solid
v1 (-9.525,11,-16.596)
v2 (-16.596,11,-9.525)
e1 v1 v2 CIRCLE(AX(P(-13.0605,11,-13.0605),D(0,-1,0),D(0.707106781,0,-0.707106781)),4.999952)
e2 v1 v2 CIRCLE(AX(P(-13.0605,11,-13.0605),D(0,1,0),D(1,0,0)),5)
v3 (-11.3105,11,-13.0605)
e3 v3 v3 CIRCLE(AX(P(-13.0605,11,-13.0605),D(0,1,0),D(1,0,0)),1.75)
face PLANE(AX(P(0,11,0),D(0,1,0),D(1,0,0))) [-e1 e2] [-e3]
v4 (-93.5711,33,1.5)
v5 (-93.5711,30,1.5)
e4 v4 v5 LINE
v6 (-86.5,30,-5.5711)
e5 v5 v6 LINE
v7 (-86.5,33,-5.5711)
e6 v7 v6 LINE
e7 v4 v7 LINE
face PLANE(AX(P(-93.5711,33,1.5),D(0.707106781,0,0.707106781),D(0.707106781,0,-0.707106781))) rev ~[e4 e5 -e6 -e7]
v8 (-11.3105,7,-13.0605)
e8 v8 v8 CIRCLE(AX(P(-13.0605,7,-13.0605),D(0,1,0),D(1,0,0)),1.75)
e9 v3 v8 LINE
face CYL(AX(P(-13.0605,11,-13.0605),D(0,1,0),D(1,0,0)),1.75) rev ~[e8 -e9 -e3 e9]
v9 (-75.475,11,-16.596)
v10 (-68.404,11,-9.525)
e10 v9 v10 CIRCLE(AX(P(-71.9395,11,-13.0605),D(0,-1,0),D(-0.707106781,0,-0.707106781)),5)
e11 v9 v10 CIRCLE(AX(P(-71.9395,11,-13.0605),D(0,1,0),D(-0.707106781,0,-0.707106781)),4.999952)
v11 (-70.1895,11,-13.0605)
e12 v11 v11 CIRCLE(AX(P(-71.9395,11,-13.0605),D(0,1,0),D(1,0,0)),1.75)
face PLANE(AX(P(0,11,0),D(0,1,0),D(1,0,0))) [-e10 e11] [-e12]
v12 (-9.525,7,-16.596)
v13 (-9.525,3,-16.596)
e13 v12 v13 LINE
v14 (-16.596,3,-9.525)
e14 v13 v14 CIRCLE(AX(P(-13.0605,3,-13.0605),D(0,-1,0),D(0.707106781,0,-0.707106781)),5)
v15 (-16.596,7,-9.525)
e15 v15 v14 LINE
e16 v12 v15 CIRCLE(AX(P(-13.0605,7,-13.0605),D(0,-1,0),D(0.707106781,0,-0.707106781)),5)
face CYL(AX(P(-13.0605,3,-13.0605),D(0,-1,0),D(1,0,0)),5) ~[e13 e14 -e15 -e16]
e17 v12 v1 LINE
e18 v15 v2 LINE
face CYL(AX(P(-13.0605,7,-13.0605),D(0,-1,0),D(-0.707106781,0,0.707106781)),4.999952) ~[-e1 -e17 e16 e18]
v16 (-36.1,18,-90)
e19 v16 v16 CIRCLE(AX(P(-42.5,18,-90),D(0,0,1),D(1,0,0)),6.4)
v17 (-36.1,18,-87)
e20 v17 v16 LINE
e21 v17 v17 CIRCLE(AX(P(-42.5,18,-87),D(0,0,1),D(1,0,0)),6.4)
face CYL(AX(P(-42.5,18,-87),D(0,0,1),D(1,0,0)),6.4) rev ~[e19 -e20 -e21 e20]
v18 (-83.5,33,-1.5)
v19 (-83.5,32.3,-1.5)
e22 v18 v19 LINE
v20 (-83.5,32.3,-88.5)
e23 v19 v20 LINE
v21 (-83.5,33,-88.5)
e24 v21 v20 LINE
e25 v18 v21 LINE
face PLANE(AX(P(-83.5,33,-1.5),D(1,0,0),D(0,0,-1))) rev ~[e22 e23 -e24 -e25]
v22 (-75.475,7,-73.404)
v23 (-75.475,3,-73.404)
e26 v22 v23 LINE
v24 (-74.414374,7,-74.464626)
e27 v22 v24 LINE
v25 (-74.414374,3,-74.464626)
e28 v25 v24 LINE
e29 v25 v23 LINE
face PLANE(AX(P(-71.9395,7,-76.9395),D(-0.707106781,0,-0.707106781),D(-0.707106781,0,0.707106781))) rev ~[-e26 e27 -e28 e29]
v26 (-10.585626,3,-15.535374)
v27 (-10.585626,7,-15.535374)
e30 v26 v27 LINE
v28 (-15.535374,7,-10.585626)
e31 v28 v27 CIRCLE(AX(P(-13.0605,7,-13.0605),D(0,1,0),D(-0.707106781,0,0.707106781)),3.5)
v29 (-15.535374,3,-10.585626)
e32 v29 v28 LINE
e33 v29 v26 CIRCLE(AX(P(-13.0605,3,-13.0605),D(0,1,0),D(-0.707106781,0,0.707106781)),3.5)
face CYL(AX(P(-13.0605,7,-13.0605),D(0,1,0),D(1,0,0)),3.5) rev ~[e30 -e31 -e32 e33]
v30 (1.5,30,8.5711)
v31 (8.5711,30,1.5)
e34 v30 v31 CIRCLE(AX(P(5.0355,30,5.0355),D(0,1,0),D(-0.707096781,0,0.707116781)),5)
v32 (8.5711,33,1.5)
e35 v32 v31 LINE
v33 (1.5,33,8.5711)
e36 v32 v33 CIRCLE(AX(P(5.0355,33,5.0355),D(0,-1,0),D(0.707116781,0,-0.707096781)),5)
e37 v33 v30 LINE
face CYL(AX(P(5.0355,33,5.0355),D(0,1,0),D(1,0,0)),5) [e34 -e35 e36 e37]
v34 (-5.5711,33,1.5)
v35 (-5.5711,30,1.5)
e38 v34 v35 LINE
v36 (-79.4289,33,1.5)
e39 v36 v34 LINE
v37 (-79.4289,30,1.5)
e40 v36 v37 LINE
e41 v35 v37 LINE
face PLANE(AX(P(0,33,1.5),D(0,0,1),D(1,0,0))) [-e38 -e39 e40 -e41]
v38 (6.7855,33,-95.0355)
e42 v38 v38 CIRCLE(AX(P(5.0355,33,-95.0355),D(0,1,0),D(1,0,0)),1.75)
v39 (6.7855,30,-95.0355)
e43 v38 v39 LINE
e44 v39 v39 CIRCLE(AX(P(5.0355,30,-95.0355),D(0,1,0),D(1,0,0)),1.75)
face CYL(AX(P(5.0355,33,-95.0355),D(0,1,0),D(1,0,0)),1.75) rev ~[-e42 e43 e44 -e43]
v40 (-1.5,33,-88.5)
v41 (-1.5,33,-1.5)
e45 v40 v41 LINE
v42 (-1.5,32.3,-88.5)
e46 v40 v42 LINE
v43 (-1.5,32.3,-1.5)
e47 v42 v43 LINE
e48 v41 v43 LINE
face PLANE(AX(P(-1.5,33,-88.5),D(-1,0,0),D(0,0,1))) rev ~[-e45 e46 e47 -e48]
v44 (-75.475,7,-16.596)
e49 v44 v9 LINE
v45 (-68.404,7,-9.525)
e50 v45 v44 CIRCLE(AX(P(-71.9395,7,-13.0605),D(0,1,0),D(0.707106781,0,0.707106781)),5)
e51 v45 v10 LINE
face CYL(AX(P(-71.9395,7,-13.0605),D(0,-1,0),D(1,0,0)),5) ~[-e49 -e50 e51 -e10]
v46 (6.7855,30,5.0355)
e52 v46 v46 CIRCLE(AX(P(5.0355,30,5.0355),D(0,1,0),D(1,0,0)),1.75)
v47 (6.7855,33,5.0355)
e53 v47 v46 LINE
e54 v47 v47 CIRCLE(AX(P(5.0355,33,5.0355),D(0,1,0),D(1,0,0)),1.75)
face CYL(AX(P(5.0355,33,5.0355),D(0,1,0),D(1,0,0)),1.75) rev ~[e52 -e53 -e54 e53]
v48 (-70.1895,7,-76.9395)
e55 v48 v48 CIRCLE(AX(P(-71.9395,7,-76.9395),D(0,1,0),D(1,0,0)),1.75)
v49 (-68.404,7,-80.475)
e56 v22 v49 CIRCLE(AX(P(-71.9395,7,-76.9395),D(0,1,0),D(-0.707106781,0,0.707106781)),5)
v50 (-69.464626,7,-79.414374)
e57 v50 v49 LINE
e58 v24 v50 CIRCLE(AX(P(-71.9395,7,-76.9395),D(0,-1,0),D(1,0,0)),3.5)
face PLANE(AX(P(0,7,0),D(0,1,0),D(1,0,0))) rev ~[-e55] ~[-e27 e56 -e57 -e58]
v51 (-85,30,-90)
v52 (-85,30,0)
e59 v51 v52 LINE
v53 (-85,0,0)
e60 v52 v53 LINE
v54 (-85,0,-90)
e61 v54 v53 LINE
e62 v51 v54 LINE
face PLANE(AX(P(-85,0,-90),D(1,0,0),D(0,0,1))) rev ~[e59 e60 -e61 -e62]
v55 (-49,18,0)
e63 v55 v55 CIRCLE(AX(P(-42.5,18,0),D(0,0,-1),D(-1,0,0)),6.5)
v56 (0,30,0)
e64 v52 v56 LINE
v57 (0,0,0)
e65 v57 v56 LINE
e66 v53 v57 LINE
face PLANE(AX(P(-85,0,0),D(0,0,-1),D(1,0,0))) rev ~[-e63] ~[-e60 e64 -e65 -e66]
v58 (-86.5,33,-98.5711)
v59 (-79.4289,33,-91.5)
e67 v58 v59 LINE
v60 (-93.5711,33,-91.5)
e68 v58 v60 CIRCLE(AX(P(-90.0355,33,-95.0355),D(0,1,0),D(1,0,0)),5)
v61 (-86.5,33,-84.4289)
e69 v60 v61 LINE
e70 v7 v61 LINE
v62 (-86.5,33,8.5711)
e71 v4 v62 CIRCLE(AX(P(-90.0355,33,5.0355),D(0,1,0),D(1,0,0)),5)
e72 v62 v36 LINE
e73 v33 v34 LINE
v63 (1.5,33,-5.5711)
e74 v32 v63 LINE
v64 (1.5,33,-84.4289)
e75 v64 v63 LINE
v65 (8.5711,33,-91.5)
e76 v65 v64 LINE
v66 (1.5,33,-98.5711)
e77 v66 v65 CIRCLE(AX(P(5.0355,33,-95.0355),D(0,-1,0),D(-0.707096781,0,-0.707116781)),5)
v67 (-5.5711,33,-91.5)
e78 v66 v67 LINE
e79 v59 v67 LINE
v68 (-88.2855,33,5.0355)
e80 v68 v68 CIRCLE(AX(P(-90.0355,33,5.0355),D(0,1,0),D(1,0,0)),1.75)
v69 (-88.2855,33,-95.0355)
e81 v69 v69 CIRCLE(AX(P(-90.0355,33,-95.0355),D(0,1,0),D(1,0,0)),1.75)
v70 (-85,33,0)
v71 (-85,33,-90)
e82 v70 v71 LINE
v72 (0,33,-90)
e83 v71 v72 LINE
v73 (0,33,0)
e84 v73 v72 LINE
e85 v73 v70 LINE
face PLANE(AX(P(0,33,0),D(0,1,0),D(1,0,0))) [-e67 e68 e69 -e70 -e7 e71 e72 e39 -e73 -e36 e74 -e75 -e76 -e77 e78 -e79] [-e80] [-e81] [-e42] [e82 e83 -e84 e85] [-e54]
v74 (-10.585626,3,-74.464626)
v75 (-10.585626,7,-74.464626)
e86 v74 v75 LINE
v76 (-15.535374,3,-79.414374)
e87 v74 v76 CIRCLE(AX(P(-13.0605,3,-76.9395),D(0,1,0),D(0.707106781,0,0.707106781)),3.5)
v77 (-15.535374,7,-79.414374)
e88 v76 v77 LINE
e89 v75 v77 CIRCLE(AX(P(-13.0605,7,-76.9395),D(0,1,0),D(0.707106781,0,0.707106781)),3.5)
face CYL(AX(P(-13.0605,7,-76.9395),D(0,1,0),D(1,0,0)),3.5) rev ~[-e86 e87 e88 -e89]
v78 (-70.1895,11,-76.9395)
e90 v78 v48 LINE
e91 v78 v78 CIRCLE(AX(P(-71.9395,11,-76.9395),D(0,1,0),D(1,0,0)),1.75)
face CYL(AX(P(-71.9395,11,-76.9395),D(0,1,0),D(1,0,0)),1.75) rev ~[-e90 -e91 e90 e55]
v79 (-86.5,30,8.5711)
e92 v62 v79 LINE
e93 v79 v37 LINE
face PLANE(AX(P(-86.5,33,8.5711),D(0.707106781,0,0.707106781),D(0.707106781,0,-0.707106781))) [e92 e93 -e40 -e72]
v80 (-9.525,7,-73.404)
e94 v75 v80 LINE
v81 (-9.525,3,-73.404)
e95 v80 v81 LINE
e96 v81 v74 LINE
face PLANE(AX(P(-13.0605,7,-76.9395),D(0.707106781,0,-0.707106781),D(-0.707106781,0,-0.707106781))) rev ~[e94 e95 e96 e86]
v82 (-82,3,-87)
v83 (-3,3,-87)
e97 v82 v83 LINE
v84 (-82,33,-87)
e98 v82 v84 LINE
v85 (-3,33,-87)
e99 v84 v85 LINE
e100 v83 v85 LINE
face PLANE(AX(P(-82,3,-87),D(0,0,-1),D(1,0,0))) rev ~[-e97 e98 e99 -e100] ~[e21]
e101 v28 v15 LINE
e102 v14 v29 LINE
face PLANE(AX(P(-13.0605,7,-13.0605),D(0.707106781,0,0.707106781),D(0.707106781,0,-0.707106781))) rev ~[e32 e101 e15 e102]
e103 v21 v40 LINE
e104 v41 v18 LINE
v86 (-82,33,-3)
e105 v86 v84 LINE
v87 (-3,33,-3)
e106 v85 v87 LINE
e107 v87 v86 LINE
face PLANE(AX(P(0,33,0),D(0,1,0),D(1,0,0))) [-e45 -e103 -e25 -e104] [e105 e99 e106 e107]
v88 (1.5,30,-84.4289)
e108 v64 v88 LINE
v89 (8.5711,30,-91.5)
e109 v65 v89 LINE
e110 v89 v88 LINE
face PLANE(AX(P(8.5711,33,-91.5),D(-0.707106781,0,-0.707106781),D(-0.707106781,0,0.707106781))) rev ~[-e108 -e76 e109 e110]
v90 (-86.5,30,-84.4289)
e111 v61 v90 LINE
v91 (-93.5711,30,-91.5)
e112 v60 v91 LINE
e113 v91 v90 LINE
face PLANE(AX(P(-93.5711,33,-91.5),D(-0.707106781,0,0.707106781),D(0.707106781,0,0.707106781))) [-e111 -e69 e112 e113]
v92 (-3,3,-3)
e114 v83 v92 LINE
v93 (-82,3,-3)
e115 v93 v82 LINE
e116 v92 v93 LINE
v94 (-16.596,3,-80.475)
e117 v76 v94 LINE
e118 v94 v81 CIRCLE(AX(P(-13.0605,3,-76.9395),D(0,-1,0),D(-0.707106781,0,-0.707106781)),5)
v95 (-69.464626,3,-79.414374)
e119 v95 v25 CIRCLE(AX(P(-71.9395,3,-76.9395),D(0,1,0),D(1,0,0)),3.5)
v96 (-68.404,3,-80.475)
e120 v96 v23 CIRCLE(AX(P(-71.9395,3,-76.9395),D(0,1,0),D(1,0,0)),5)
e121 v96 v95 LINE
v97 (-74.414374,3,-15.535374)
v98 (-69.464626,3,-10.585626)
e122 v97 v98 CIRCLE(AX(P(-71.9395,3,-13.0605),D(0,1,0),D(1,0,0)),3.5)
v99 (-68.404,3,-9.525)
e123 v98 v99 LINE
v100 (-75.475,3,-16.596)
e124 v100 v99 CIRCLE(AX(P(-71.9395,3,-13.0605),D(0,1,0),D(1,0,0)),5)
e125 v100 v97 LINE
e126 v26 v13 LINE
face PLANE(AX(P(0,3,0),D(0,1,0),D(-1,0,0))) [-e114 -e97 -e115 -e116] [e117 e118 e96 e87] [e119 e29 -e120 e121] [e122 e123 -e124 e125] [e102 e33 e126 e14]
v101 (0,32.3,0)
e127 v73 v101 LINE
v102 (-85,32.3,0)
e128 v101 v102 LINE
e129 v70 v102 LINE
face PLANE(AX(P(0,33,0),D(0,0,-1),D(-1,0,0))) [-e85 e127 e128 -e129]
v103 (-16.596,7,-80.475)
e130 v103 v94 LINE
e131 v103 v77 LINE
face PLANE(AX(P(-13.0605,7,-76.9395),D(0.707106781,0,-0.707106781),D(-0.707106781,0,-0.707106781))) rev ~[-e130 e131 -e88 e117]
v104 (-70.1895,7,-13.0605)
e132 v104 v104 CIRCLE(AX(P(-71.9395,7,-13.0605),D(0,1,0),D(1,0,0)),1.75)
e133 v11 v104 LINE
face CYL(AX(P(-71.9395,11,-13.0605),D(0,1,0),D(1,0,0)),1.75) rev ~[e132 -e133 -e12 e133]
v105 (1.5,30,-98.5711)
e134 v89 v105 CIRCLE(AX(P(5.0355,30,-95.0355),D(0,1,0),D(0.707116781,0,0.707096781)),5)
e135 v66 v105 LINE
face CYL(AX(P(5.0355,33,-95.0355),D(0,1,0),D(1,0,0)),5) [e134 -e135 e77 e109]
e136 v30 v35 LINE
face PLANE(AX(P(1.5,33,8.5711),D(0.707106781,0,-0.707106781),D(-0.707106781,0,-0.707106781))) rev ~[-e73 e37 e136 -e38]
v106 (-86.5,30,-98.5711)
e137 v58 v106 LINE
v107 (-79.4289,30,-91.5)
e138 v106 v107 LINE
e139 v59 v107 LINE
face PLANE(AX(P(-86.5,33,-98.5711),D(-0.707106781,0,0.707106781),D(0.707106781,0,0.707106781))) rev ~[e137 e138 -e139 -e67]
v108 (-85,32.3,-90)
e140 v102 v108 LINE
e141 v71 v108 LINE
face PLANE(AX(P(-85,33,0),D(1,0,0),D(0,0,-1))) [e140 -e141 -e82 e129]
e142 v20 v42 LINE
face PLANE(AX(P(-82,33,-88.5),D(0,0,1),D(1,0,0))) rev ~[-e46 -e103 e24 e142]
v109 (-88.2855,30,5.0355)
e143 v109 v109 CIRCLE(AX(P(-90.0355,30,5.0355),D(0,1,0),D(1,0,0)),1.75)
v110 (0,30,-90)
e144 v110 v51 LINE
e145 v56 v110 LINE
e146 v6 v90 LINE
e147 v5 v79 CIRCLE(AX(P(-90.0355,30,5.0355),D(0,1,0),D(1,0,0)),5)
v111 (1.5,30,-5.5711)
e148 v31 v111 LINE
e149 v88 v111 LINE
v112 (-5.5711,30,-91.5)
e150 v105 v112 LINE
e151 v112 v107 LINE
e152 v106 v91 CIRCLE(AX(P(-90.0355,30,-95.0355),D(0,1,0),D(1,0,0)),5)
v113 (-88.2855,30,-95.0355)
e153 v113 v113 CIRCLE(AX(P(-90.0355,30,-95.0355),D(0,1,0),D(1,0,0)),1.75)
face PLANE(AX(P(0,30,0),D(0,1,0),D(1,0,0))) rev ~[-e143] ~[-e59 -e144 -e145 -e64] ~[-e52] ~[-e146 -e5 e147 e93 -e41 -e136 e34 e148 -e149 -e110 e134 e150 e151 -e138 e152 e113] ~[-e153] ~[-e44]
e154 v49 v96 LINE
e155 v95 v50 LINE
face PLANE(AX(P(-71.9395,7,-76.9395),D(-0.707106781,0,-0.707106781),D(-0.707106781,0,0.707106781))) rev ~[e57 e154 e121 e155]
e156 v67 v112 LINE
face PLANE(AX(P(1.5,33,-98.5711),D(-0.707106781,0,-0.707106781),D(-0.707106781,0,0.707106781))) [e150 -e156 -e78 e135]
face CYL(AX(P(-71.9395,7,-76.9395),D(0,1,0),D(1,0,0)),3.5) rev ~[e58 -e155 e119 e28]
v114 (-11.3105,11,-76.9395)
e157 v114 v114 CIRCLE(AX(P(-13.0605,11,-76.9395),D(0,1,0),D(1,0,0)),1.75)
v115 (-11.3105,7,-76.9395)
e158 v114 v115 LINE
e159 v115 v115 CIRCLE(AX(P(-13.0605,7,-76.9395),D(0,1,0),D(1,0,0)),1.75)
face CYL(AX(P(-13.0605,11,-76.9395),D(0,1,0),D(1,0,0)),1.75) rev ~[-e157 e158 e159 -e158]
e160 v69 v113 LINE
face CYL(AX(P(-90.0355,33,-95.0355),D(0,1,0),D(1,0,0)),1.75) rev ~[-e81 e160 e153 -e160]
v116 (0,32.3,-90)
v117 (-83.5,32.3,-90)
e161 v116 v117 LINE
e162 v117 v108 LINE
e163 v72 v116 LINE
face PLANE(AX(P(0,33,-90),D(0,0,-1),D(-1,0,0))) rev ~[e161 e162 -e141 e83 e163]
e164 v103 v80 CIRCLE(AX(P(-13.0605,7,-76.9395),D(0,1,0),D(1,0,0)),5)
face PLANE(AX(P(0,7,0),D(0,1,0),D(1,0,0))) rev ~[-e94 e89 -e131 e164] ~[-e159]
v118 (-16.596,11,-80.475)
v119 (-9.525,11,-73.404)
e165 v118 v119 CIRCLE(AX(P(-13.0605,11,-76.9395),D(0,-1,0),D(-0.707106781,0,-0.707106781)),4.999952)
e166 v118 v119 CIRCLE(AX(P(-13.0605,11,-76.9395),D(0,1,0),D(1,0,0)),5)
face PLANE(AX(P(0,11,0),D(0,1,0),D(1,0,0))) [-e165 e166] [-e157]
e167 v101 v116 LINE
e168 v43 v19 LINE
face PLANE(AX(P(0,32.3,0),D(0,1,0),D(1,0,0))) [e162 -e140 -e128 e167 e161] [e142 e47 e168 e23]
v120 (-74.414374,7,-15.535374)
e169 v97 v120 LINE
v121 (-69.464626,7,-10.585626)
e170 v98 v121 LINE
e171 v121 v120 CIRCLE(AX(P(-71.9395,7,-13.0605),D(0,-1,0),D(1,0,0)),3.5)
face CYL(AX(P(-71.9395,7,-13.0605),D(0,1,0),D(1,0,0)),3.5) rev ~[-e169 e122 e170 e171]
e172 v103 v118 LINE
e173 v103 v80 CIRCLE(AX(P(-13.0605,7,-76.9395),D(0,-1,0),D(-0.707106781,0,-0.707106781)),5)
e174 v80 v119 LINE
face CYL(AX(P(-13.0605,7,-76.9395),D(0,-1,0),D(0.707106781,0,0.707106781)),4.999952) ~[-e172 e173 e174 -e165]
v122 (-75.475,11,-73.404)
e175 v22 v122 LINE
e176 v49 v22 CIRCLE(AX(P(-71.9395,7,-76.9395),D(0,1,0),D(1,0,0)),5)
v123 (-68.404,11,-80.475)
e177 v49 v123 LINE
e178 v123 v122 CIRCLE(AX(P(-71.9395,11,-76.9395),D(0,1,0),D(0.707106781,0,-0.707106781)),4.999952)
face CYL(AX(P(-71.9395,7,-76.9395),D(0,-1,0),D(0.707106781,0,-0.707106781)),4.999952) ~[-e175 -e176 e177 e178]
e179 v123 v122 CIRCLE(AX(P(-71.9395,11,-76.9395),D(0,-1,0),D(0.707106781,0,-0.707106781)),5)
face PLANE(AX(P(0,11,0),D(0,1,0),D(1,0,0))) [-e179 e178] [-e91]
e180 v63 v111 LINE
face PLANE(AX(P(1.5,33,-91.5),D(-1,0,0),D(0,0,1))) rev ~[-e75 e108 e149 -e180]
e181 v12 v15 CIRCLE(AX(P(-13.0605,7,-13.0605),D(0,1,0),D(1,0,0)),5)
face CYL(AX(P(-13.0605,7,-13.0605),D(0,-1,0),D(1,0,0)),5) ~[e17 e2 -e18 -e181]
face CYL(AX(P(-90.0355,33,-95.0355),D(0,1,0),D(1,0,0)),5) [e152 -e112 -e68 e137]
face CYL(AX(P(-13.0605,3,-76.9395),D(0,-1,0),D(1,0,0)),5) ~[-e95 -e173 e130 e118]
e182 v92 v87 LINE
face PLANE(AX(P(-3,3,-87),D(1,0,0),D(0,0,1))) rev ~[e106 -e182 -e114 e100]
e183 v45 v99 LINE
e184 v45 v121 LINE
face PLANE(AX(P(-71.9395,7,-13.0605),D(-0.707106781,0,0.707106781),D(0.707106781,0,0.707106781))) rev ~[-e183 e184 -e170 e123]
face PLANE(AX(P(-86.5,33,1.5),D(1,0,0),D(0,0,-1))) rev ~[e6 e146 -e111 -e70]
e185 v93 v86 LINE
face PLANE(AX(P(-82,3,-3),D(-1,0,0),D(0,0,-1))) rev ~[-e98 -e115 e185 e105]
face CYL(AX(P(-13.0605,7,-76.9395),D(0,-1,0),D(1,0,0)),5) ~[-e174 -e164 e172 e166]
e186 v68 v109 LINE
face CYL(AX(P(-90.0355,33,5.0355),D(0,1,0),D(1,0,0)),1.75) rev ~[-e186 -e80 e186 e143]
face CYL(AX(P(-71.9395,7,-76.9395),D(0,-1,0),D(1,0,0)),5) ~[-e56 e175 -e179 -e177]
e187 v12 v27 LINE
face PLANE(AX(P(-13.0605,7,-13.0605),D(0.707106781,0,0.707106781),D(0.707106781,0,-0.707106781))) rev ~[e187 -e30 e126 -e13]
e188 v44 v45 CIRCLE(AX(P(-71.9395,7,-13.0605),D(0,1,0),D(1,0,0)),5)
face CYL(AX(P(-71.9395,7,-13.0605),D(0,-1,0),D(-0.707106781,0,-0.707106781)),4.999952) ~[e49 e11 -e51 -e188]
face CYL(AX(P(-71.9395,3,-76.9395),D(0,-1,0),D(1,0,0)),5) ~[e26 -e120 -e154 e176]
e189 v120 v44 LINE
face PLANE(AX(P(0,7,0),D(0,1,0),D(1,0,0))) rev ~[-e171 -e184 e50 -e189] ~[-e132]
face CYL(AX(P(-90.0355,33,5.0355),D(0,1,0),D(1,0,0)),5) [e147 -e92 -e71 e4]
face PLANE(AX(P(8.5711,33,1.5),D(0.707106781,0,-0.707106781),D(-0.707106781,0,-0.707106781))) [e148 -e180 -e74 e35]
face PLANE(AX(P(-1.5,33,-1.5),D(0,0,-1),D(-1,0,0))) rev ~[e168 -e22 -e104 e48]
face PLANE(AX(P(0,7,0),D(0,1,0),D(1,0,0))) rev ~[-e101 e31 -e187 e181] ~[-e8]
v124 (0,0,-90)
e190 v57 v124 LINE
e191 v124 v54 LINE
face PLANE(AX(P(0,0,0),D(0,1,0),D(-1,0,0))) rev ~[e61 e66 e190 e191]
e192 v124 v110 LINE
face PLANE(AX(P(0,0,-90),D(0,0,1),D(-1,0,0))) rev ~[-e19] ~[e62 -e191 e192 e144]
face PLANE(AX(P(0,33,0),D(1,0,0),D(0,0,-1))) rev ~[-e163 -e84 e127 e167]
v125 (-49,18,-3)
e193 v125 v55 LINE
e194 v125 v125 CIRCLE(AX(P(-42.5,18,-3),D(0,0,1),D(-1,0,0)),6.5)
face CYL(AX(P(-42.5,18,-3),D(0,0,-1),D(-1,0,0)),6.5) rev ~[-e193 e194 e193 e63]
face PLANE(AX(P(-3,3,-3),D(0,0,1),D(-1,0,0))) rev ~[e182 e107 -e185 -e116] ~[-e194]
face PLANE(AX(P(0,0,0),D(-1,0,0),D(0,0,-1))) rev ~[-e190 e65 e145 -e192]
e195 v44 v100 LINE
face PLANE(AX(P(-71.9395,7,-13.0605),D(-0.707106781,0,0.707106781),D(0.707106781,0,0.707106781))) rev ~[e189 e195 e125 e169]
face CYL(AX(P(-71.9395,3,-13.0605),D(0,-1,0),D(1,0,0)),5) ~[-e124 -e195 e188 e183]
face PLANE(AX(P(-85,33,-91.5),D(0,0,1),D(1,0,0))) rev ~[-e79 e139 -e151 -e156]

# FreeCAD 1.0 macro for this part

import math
import FreeCAD as App
import Part
import Sketcher
from FreeCAD import Vector

doc = App.newDocument("Part")
body = doc.addObject("PartDesign::Body", "Body")

sketch1 = body.newObject("Sketcher::SketchObject", "Sketch")
sketch1.AttachmentSupport = (doc.getObject("XZ_Plane"), [""])
sketch1.MapMode = "FlatFace"
sketch1.addGeometry([
    Part.LineSegment(Vector(-85, 0, 0), Vector(0, 0, 0)),
    Part.LineSegment(Vector(0, 0, 0), Vector(0, -90, 0)),
    Part.LineSegment(Vector(0, -90, 0), Vector(-85, -90, 0)),
    Part.LineSegment(Vector(-85, -90, 0), Vector(-85, 0, 0)),
], False)
sketch1.addConstraint([
    Sketcher.Constraint("Coincident", 0, 2, 1, 1),
    Sketcher.Constraint("Coincident", 1, 2, 2, 1),
    Sketcher.Constraint("Coincident", 2, 2, 3, 1),
    Sketcher.Constraint("Coincident", 3, 2, 0, 1),
    Sketcher.Constraint("Horizontal", 0),
    Sketcher.Constraint("Vertical", 1),
    Sketcher.Constraint("Horizontal", 2),
    Sketcher.Constraint("Vertical", 3),
    Sketcher.Constraint("Coincident", 0, 2, -1, 1),
    Sketcher.Constraint("DistanceX", 0, 1, 0, 2, 85.0),
    Sketcher.Constraint("DistanceY", 1, 2, 1, 1, 90.0),
])
pad1 = body.newObject("PartDesign::Pad", "Pad")
pad1.Profile = sketch1
pad1.Length = 3
pad1.Reversed = True

sketch2 = body.newObject("Sketcher::SketchObject", "Sketch001")
sketch2.AttachmentSupport = (doc.getObject("XZ_Plane"), [""])
sketch2.MapMode = "FlatFace"
sketch2.AttachmentOffset = App.Placement(Vector(0, 0, -3), App.Rotation())
sketch2.addGeometry([
    Part.LineSegment(Vector(-85, 0, 0), Vector(0, 0, 0)),
    Part.LineSegment(Vector(0, 0, 0), Vector(0, -90, 0)),
    Part.LineSegment(Vector(0, -90, 0), Vector(-85, -90, 0)),
    Part.LineSegment(Vector(-85, -90, 0), Vector(-85, 0, 0)),
    Part.LineSegment(Vector(-3, -87, 0), Vector(-3, -3, 0)),
    Part.LineSegment(Vector(-3, -3, 0), Vector(-82, -3, 0)),
    Part.LineSegment(Vector(-82, -3, 0), Vector(-82, -87, 0)),
    Part.LineSegment(Vector(-82, -87, 0), Vector(-3, -87, 0)),
], False)
sketch2.addConstraint([
    Sketcher.Constraint("Coincident", 0, 2, 1, 1),
    Sketcher.Constraint("Coincident", 1, 2, 2, 1),
    Sketcher.Constraint("Coincident", 2, 2, 3, 1),
    Sketcher.Constraint("Coincident", 3, 2, 0, 1),
    Sketcher.Constraint("Coincident", 4, 2, 5, 1),
    Sketcher.Constraint("Coincident", 5, 2, 6, 1),
    Sketcher.Constraint("Coincident", 6, 2, 7, 1),
    Sketcher.Constraint("Coincident", 7, 2, 4, 1),
    Sketcher.Constraint("Horizontal", 0),
    Sketcher.Constraint("Vertical", 1),
    Sketcher.Constraint("Horizontal", 2),
    Sketcher.Constraint("Vertical", 3),
    Sketcher.Constraint("Vertical", 4),
    Sketcher.Constraint("Horizontal", 5),
    Sketcher.Constraint("Vertical", 6),
    Sketcher.Constraint("Horizontal", 7),
    Sketcher.Constraint("Coincident", 0, 2, -1, 1),
    Sketcher.Constraint("DistanceX", 0, 1, 0, 2, 85.0),
    Sketcher.Constraint("DistanceX", 5, 2, 5, 1, 79.0),
    Sketcher.Constraint("DistanceY", 1, 2, 1, 1, 90.0),
    Sketcher.Constraint("DistanceY", 4, 1, 4, 2, 84.0),
    Sketcher.Constraint("DistanceX", 4, 2, -1, 1, 3.0),
    Sketcher.Constraint("DistanceY", 4, 2, -1, 1, 3.0),
])
pad2 = body.newObject("PartDesign::Pad", "Pad001")
pad2.Profile = sketch2
pad2.Length = 30
pad2.Reversed = True

sketch3 = body.newObject("Sketcher::SketchObject", "Sketch002")
sketch3.AttachmentSupport = (doc.getObject("XZ_Plane"), [""])
sketch3.MapMode = "FlatFace"
sketch3.AttachmentOffset = App.Placement(Vector(0, 0, -33), App.Rotation())
sketch3.addGeometry([
    Part.LineSegment(Vector(2, -92, 0), Vector(-86, -92, 0)),
    Part.LineSegment(Vector(-86, -92, 0), Vector(-86, 2, 0)),
    Part.LineSegment(Vector(-86, 2, 0), Vector(2, 2, 0)),
    Part.LineSegment(Vector(2, 2, 0), Vector(2, -92, 0)),
    Part.LineSegment(Vector(0, -90, 0), Vector(0, 0, 0)),
    Part.LineSegment(Vector(0, 0, 0), Vector(-85, 0, 0)),
    Part.LineSegment(Vector(-85, 0, 0), Vector(-85, -90, 0)),
    Part.LineSegment(Vector(-85, -90, 0), Vector(0, -90, 0)),
], False)
sketch3.addConstraint([
    Sketcher.Constraint("Coincident", 0, 2, 1, 1),
    Sketcher.Constraint("Coincident", 1, 2, 2, 1),
    Sketcher.Constraint("Coincident", 2, 2, 3, 1),
    Sketcher.Constraint("Coincident", 3, 2, 0, 1),
    Sketcher.Constraint("Coincident", 4, 2, 5, 1),
    Sketcher.Constraint("Coincident", 5, 2, 6, 1),
    Sketcher.Constraint("Coincident", 6, 2, 7, 1),
    Sketcher.Constraint("Coincident", 7, 2, 4, 1),
    Sketcher.Constraint("Horizontal", 0),
    Sketcher.Constraint("Vertical", 1),
    Sketcher.Constraint("Horizontal", 2),
    Sketcher.Constraint("Vertical", 3),
    Sketcher.Constraint("Vertical", 4),
    Sketcher.Constraint("Horizontal", 5),
    Sketcher.Constraint("Vertical", 6),
    Sketcher.Constraint("Horizontal", 7),
    Sketcher.Constraint("Coincident", 4, 2, -1, 1),
    Sketcher.Constraint("DistanceY", -1, 1, 1, 2, 1.5),
    Sketcher.Constraint("DistanceX", -1, 1, 2, 2, 1.5),
    Sketcher.Constraint("DistanceX", 1, 2, 5, 2, 1.5),
    Sketcher.Constraint("DistanceY", 0, 2, 6, 2, 1.5),
    Sketcher.Constraint("DistanceX", 0, 2, 0, 1, 88.0),
    Sketcher.Constraint("DistanceY", 1, 1, 1, 2, 93.0),
])
pad3 = body.newObject("PartDesign::Pad", "Pad002")
pad3.Profile = sketch3
pad3.Length = 3

sketch4 = body.newObject("Sketcher::SketchObject", "Sketch003")
sketch4.AttachmentSupport = (doc.getObject("XZ_Plane"), [""])
sketch4.MapMode = "FlatFace"
sketch4.AttachmentOffset = App.Placement(Vector(0, 0, -33), App.Rotation())
sketch4.addGeometry([
    Part.LineSegment(Vector(0, -90, 0), Vector(-83.5, -90, 0)),
    Part.LineSegment(Vector(-83.5, -90, 0), Vector(-85, -90, 0)),
    Part.LineSegment(Vector(-85, -90, 0), Vector(-85, 0, 0)),
    Part.LineSegment(Vector(-85, 0, 0), Vector(0, 0, 0)),
    Part.LineSegment(Vector(0, 0, 0), Vector(0, -90, 0)),
    Part.LineSegment(Vector(-1.5, -88.5, 0), Vector(-1.5, -1.5, 0)),
    Part.LineSegment(Vector(-1.5, -1.5, 0), Vector(-83.5, -1.5, 0)),
    Part.LineSegment(Vector(-83.5, -1.5, 0), Vector(-83.5, -88.5, 0)),
    Part.LineSegment(Vector(-83.5, -88.5, 0), Vector(-1.5, -88.5, 0)),
], False)
sketch4.addConstraint([
    Sketcher.Constraint("Coincident", 0, 2, 1, 1),
    Sketcher.Constraint("Coincident", 1, 2, 2, 1),
    Sketcher.Constraint("Coincident", 2, 2, 3, 1),
    Sketcher.Constraint("Coincident", 3, 2, 4, 1),
    Sketcher.Constraint("Coincident", 4, 2, 0, 1),
    Sketcher.Constraint("Coincident", 5, 2, 6, 1),
    Sketcher.Constraint("Coincident", 6, 2, 7, 1),
    Sketcher.Constraint("Coincident", 7, 2, 8, 1),
    Sketcher.Constraint("Coincident", 8, 2, 5, 1),
    Sketcher.Constraint("Horizontal", 0),
    Sketcher.Constraint("Horizontal", 1),
    Sketcher.Constraint("Vertical", 2),
    Sketcher.Constraint("Horizontal", 3),
    Sketcher.Constraint("Vertical", 4),
    Sketcher.Constraint("Vertical", 5),
    Sketcher.Constraint("Horizontal", 6),
    Sketcher.Constraint("Vertical", 7),
    Sketcher.Constraint("Horizontal", 8),
    Sketcher.Constraint("Coincident", 3, 2, -1, 1),
    Sketcher.Constraint("Vertical", 0, 2, 6, 2),
    Sketcher.Constraint("DistanceX", 1, 2, 1, 1, 1.5),
    Sketcher.Constraint("DistanceX", 5, 2, -1, 1, 1.5),
    Sketcher.Constraint("DistanceY", 5, 2, -1, 1, 1.5),
    Sketcher.Constraint("DistanceY", 0, 2, 7, 2, 1.5),
    Sketcher.Constraint("DistanceX", 3, 1, 3, 2, 85.0),
    Sketcher.Constraint("DistanceY", 2, 1, 2, 2, 90.0),
])
pocket1 = body.newObject("PartDesign::Pocket", "Pocket")
pocket1.Profile = sketch4
pocket1.Length = 0.7
pocket1.Reversed = True

sketch5 = body.newObject("Sketcher::SketchObject", "Sketch004")
sketch5.AttachmentSupport = (doc.getObject("XY_Plane"), [""])
sketch5.MapMode = "FlatFace"
sketch5.AttachmentOffset = App.Placement(Vector(0, 0, -87), App.Rotation())
sketch5.addGeometry(Part.Circle(Vector(-42, 18, 0), Vector(0, 0, 1), 6), False)
sketch5.addConstraint([
    Sketcher.Constraint("Diameter", 0, 12.8),
    Sketcher.Constraint("DistanceY", -1, 1, 0, 3, 18.0),
    Sketcher.Constraint("DistanceX", 0, 3, -1, 1, 42.5),
])
pocket2 = body.newObject("PartDesign::Pocket", "Pocket001")
pocket2.Profile = sketch5
pocket2.Length = 3

sketch6 = body.newObject("Sketcher::SketchObject", "Sketch005")
sketch6.AttachmentSupport = (doc.getObject("XY_Plane"), [""])
sketch6.MapMode = "FlatFace"
sketch6.AttachmentOffset = App.Placement(Vector(0, 0, -3), App.Rotation())
sketch6.addGeometry(Part.Circle(Vector(-42, 18, 0), Vector(0, 0, 1), 6), False)
sketch6.addConstraint([
    Sketcher.Constraint("Diameter", 0, 13.0),
    Sketcher.Constraint("DistanceY", -1, 1, 0, 3, 18.0),
    Sketcher.Constraint("DistanceX", 0, 3, -1, 1, 42.5),
])
pocket3 = body.newObject("PartDesign::Pocket", "Pocket002")
pocket3.Profile = sketch6
pocket3.Length = 3
pocket3.Reversed = True

sketch7 = body.newObject("Sketcher::SketchObject", "Sketch006")
sketch7.AttachmentSupport = (doc.getObject("XZ_Plane"), [""])
sketch7.MapMode = "FlatFace"
sketch7.AttachmentOffset = App.Placement(Vector(0, 0, -3), App.Rotation())
sketch7.addGeometry([
    Part.Circle(Vector(-13, -13, 0), Vector(0, 0, 1), 5),
    Part.Circle(Vector(-13, -77, 0), Vector(0, 0, 1), 5),
    Part.Circle(Vector(-72, -77, 0), Vector(0, 0, 1), 5),
    Part.Circle(Vector(-72, -13, 0), Vector(0, 0, 1), 5),
], False)
sketch7.addConstraint([
    Sketcher.Constraint("Equal", 0, 1),
    Sketcher.Constraint("Equal", 1, 2),
    Sketcher.Constraint("Equal", 2, 3),
    Sketcher.Constraint("Horizontal", 1, 3, 2, 3),
    Sketcher.Constraint("Horizontal", 0, 3, 3, 3),
    Sketcher.Constraint("Vertical", 0, 3, 1, 3),
    Sketcher.Constraint("Vertical", 2, 3, 3, 3),
    Sketcher.Constraint("Diameter", 0, 10.0),
    Sketcher.Constraint("DistanceY", 1, 3, 0, 3, 63.879),
    Sketcher.Constraint("DistanceX", 2, 3, 1, 3, 58.879),
    Sketcher.Constraint("DistanceX", 0, 3, -1, 1, 13.0605),
    Sketcher.Constraint("DistanceY", 0, 3, -1, 1, 13.0605),
])
pad4 = body.newObject("PartDesign::Pad", "Pad003")
pad4.Profile = sketch7
pad4.Length = 4
pad4.Reversed = True

sketch8 = body.newObject("Sketcher::SketchObject", "Sketch007")
sketch8.AttachmentSupport = (doc.getObject("XZ_Plane"), [""])
sketch8.MapMode = "FlatFace"
sketch8.AttachmentOffset = App.Placement(Vector(0, 0, -7), App.Rotation())
sketch8.addGeometry([
    Part.ArcOfCircle(Part.Circle(Vector(-72, -13, 0), Vector(0, 0, 1), 5), math.radians(-135), math.radians(45)),
    Part.LineSegment(Vector(-68, -10, 0), Vector(-75, -17, 0)),
    Part.ArcOfCircle(Part.Circle(Vector(-72, -77, 0), Vector(0, 0, 1), 5), math.radians(-45), math.radians(135)),
    Part.LineSegment(Vector(-75, -73, 0), Vector(-68, -80, 0)),
    Part.LineSegment(Vector(-17, -10, 0), Vector(-10, -17, 0)),
    Part.ArcOfCircle(Part.Circle(Vector(-13, -13, 0), Vector(0, 0, 1), 5), math.radians(135), math.radians(315)),
    Part.LineSegment(Vector(-10, -73, 0), Vector(-17, -80, 0)),
    Part.ArcOfCircle(Part.Circle(Vector(-13, -77, 0), Vector(0, 0, 1), 5), math.radians(45), math.radians(225)),
], False)
sketch8.addConstraint([
    Sketcher.Constraint("Coincident", 0, 1, 1, 2),
    Sketcher.Constraint("Coincident", 1, 1, 0, 2),
    Sketcher.Constraint("Coincident", 2, 1, 3, 2),
    Sketcher.Constraint("Coincident", 3, 1, 2, 2),
    Sketcher.Constraint("Coincident", 4, 1, 5, 1),
    Sketcher.Constraint("Coincident", 5, 2, 4, 2),
    Sketcher.Constraint("Coincident", 6, 1, 7, 1),
    Sketcher.Constraint("Coincident", 7, 2, 6, 2),
    Sketcher.Constraint("Equal", 0, 2),
    Sketcher.Constraint("Equal", 2, 5),
    Sketcher.Constraint("Equal", 5, 7),
    Sketcher.Constraint("Perpendicular", 1, 3),
    Sketcher.Constraint("Parallel", 3, 4),
    Sketcher.Constraint("Perpendicular", 4, 6),
    Sketcher.Constraint("Horizontal", 0, 3, 5, 3),
    Sketcher.Constraint("Horizontal", 2, 3, 7, 3),
    Sketcher.Constraint("Horizontal", 1, 1, 4, 1),
    Sketcher.Constraint("Horizontal", 0, 1, 5, 2),
    Sketcher.Constraint("Horizontal", 3, 1, 6, 1),
    Sketcher.Constraint("Vertical", 0, 3, 2, 3),
    Sketcher.Constraint("Vertical", 5, 3, 7, 3),
    Sketcher.Constraint("Vertical", 1, 1, 2, 1),
    Sketcher.Constraint("Radius", 0, 5.0),
    Sketcher.Constraint("DistanceY", 2, 1, 1, 1, 70.95),
    Sketcher.Constraint("DistanceX", 0, 1, -1, 1, 75.475),
    Sketcher.Constraint("DistanceY", 0, 1, -1, 1, 16.596),
    Sketcher.Constraint("DistanceX", 4, 1, -1, 1, 16.596),
    Sketcher.Constraint("DistanceY", 2, 3, 0, 3, 63.879),
])
pocket4 = body.newObject("PartDesign::Pocket", "Pocket003")
pocket4.Profile = sketch8
pocket4.Length = 4
pocket4.Reversed = True

sketch9 = body.newObject("Sketcher::SketchObject", "Sketch008")
sketch9.AttachmentSupport = (doc.getObject("XZ_Plane"), [""])
sketch9.MapMode = "FlatFace"
sketch9.AttachmentOffset = App.Placement(Vector(0, 0, -7), App.Rotation())
sketch9.addGeometry([
    Part.Circle(Vector(-71.9, -13.1, 0), Vector(0, 0, 1), 3.5),
    Part.Circle(Vector(-71.9, -76.9, 0), Vector(0, 0, 1), 3.5),
    Part.Circle(Vector(-13.1, -76.9, 0), Vector(0, 0, 1), 3.5),
    Part.Circle(Vector(-13.1, -13.1, 0), Vector(0, 0, 1), 3.5),
], False)
sketch9.addConstraint([
    Sketcher.Constraint("Equal", 0, 1),
    Sketcher.Constraint("Equal", 1, 2),
    Sketcher.Constraint("Equal", 2, 3),
    Sketcher.Constraint("Horizontal", 1, 3, 2, 3),
    Sketcher.Constraint("Horizontal", 0, 3, 3, 3),
    Sketcher.Constraint("Vertical", 0, 3, 1, 3),
    Sketcher.Constraint("Vertical", 2, 3, 3, 3),
    Sketcher.Constraint("Diameter", 0, 7.0),
    Sketcher.Constraint("DistanceY", 1, 3, 0, 3, 63.879),
    Sketcher.Constraint("DistanceX", 1, 3, 2, 3, 58.879),
    Sketcher.Constraint("DistanceX", 0, 3, -1, 1, 71.9395),
    Sketcher.Constraint("DistanceY", 0, 3, -1, 1, 13.0605),
])
pocket5 = body.newObject("PartDesign::Pocket", "Pocket004")
pocket5.Profile = sketch9
pocket5.Length = 4
pocket5.Reversed = True

sketch10 = body.newObject("Sketcher::SketchObject", "Sketch009")
sketch10.AttachmentSupport = (doc.getObject("XZ_Plane"), [""])
sketch10.MapMode = "FlatFace"
sketch10.AttachmentOffset = App.Placement(Vector(0, 0, -7), App.Rotation())
sketch10.addGeometry([
    Part.Circle(Vector(-71.9, -13.1, 0), Vector(0, 0, 1), 5),
    Part.Circle(Vector(-13.1, -13.1, 0), Vector(0, 0, 1), 5),
    Part.Circle(Vector(-13.1, -76.9, 0), Vector(0, 0, 1), 5),
    Part.Circle(Vector(-71.9, -76.9, 0), Vector(0, 0, 1), 5),
], False)
sketch10.addConstraint([
    Sketcher.Constraint("Equal", 0, 1),
    Sketcher.Constraint("Equal", 1, 2),
    Sketcher.Constraint("Equal", 2, 3),
    Sketcher.Constraint("Horizontal", 0, 3, 1, 3),
    Sketcher.Constraint("Horizontal", 2, 3, 3, 3),
    Sketcher.Constraint("Vertical", 1, 3, 2, 3),
    Sketcher.Constraint("Vertical", 0, 3, 3, 3),
    Sketcher.Constraint("Diameter", 0, 10.0),
    Sketcher.Constraint("DistanceX", 0, 3, 1, 3, 58.879),
    Sketcher.Constraint("DistanceY", 2, 3, 1, 3, 63.879),
    Sketcher.Constraint("DistanceX", 0, 3, -1, 1, 71.9395),
    Sketcher.Constraint("DistanceY", 0, 3, -1, 1, 13.0605),
])
pad5 = body.newObject("PartDesign::Pad", "Pad004")
pad5.Profile = sketch10
pad5.Length = 4
pad5.Reversed = True

sketch11 = body.newObject("Sketcher::SketchObject", "Sketch010")
sketch11.AttachmentSupport = (doc.getObject("XZ_Plane"), [""])
sketch11.MapMode = "FlatFace"
sketch11.AttachmentOffset = App.Placement(Vector(0, 0, -11), App.Rotation())
sketch11.addGeometry([
    Part.Circle(Vector(-13.1, -76.9, 0), Vector(0, 0, 1), 1.8),
    Part.Circle(Vector(-13.1, -13.1, 0), Vector(0, 0, 1), 1.8),
    Part.Circle(Vector(-71.9, -13.1, 0), Vector(0, 0, 1), 1.8),
    Part.Circle(Vector(-71.9, -76.9, 0), Vector(0, 0, 1), 1.8),
], False)
sketch11.addConstraint([
    Sketcher.Constraint("Equal", 0, 1),
    Sketcher.Constraint("Equal", 1, 2),
    Sketcher.Constraint("Equal", 2, 3),
    Sketcher.Constraint("Horizontal", 1, 3, 2, 3),
    Sketcher.Constraint("Horizontal", 0, 3, 3, 3),
    Sketcher.Constraint("Vertical", 0, 3, 1, 3),
    Sketcher.Constraint("Vertical", 2, 3, 3, 3),
    Sketcher.Constraint("Diameter", 0, 3.5),
    Sketcher.Constraint("DistanceY", 0, 3, 1, 3, 63.879),
    Sketcher.Constraint("DistanceX", 2, 3, 1, 3, 58.879),
    Sketcher.Constraint("DistanceX", 0, 3, -1, 1, 13.0605),
    Sketcher.Constraint("DistanceY", 0, 3, -1, 1, 76.9395),
])
pocket6 = body.newObject("PartDesign::Pocket", "Pocket005")
pocket6.Profile = sketch11
pocket6.Length = 4
pocket6.Reversed = True

sketch12 = body.newObject("Sketcher::SketchObject", "Sketch011")
sketch12.AttachmentSupport = (doc.getObject("XZ_Plane"), [""])
sketch12.MapMode = "FlatFace"
sketch12.AttachmentOffset = App.Placement(Vector(0, 0, -33), App.Rotation())
sketch12.addGeometry([
    Part.LineSegment(Vector(2, -84, 0), Vector(9, -92, 0)),
    Part.ArcOfCircle(Part.Circle(Vector(5, -95, 0), Vector(0, 0, 1), 5), math.radians(-135), math.radians(45)),
    Part.LineSegment(Vector(2, -99, 0), Vector(-6, -92, 0)),
    Part.LineSegment(Vector(-6, -92, 0), Vector(2, -92, 0)),
    Part.LineSegment(Vector(2, -92, 0), Vector(2, -84, 0)),
    Part.LineSegment(Vector(9, 2, 0), Vector(2, -6, 0)),
    Part.LineSegment(Vector(2, -6, 0), Vector(2, 2, 0)),
    Part.LineSegment(Vector(2, 2, 0), Vector(-6, 2, 0)),
    Part.LineSegment(Vector(-6, 2, 0), Vector(2, 9, 0)),
    Part.ArcOfCircle(Part.Circle(Vector(5, 5, 0), Vector(0, 0, 1), 5), math.radians(-45), math.radians(135)),
    Part.LineSegment(Vector(-86, -92, 0), Vector(-79, -92, 0)),
    Part.LineSegment(Vector(-79, -92, 0), Vector(-86, -99, 0)),
    Part.ArcOfCircle(Part.Circle(Vector(-90, -95, 0), Vector(0, 0, 1), 5), math.radians(135), math.radians(315)),
    Part.LineSegment(Vector(-94, -92, 0), Vector(-86, -84, 0)),
    Part.LineSegment(Vector(-86, -84, 0), Vector(-86, -92, 0)),
    Part.LineSegment(Vector(-86, 9, 0), Vector(-79, 2, 0)),
    Part.LineSegment(Vector(-79, 2, 0), Vector(-86, 2, 0)),
    Part.LineSegment(Vector(-86, 2, 0), Vector(-86, -6, 0)),
    Part.LineSegment(Vector(-86, -6, 0), Vector(-94, 2, 0)),
    Part.ArcOfCircle(Part.Circle(Vector(-90, 5, 0), Vector(0, 0, 1), 5), math.radians(45), math.radians(225)),
], False)
sketch12.addConstraint([
    Sketcher.Constraint("Tangent", 0, 2, 1, 2),
    Sketcher.Constraint("Tangent", 1, 1, 2, 1),
    Sketcher.Constraint("Coincident", 2, 2, 3, 1),
    Sketcher.Constraint("Coincident", 3, 2, 4, 1),
    Sketcher.Constraint("Coincident", 4, 2, 0, 1),
    Sketcher.Constraint("Coincident", 5, 2, 6, 1),
    Sketcher.Constraint("Coincident", 6, 2, 7, 1),
    Sketcher.Constraint("Coincident", 7, 2, 8, 1),
    Sketcher.Constraint("Tangent", 8, 2, 9, 2),
    Sketcher.Constraint("Tangent", 9, 1, 5, 1),
    Sketcher.Constraint("Coincident", 10, 2, 11, 1),
    Sketcher.Constraint("Tangent", 11, 2, 12, 2),
    Sketcher.Constraint("Tangent", 12, 1, 13, 1),
    Sketcher.Constraint("Coincident", 13, 2, 14, 1),
    Sketcher.Constraint("Coincident", 14, 2, 10, 1),
    Sketcher.Constraint("Coincident", 15, 2, 16, 1),
    Sketcher.Constraint("Coincident", 16, 2, 17, 1),
    Sketcher.Constraint("Coincident", 17, 2, 18, 1),
    Sketcher.Constraint("Tangent", 18, 2, 19, 2),
    Sketcher.Constraint("Tangent", 19, 1, 15, 1),
    Sketcher.Constraint("Horizontal", 3),
    Sketcher.Constraint("Vertical", 4),
    Sketcher.Constraint("Vertical", 6),
    Sketcher.Constraint("Horizontal", 7),
    Sketcher.Constraint("Horizontal", 10),
    Sketcher.Constraint("Vertical", 14),
    Sketcher.Constraint("Horizontal", 16),
    Sketcher.Constraint("Vertical", 17),
    Sketcher.Constraint("Equal", 1, 9),
    Sketcher.Constraint("Equal", 9, 12),
    Sketcher.Constraint("Equal", 12, 19),
    Sketcher.Constraint("Parallel", 0, 2),
    Sketcher.Constraint("Perpendicular", 2, 5),
    Sketcher.Constraint("Parallel", 5, 8),
    Sketcher.Constraint("Parallel", 8, 11),
    Sketcher.Constraint("Parallel", 11, 13),
    Sketcher.Constraint("Perpendicular", 13, 15),
    Sketcher.Constraint("Parallel", 15, 18),
    Sketcher.Constraint("Horizontal", 1, 3, 12, 3),
    Sketcher.Constraint("Horizontal", 9, 3, 19, 3),
    Sketcher.Constraint("Horizontal", 0, 2, 2, 2),
    Sketcher.Constraint("Horizontal", 7, 2, 9, 1),
    Sketcher.Constraint("Horizontal", 3, 2, 10, 2),
    Sketcher.Constraint("Horizontal", 1, 1, 11, 2),
    Sketcher.Constraint("Horizontal", 4, 2, 13, 2),
    Sketcher.Constraint("Horizontal", 9, 1, 15, 2),
    Sketcher.Constraint("Horizontal", 5, 2, 17, 2),
    Sketcher.Constraint("Vertical", 1, 3, 9, 3),
    Sketcher.Constraint("Vertical", 12, 3, 19, 3),
    Sketcher.Constraint("Vertical", 1, 1, 3, 2),
    Sketcher.Constraint("Vertical", 4, 2, 5, 2),
    Sketcher.Constraint("Radius", 1, 5.0),
    Sketcher.Constraint("DistanceY", 3, 2, 6, 2, 93.0),
    Sketcher.Constraint("DistanceX", 11, 2, 1, 1, 88.0),
    Sketcher.Constraint("DistanceY", 0, 2, -1, 1, 91.5),
    Sketcher.Constraint("DistanceX", -1, 1, 1, 1, 1.5),
])
pad6 = body.newObject("PartDesign::Pad", "Pad005")
pad6.Profile = sketch12
pad6.Length = 3

sketch13 = body.newObject("Sketcher::SketchObject", "Sketch012")
sketch13.AttachmentSupport = (doc.getObject("XZ_Plane"), [""])
sketch13.MapMode = "FlatFace"
sketch13.AttachmentOffset = App.Placement(Vector(0, 0, -33), App.Rotation())
sketch13.addGeometry([
    Part.Circle(Vector(5, 5, 0), Vector(0, 0, 1), 1.8),
    Part.Circle(Vector(5, -95, 0), Vector(0, 0, 1), 1.8),
    Part.Circle(Vector(-90, -95, 0), Vector(0, 0, 1), 1.8),
    Part.Circle(Vector(-90, 5, 0), Vector(0, 0, 1), 1.8),
], False)
sketch13.addConstraint([
    Sketcher.Constraint("Equal", 0, 1),
    Sketcher.Constraint("Equal", 1, 2),
    Sketcher.Constraint("Equal", 2, 3),
    Sketcher.Constraint("Horizontal", 1, 3, 2, 3),
    Sketcher.Constraint("Horizontal", 0, 3, 3, 3),
    Sketcher.Constraint("Vertical", 0, 3, 1, 3),
    Sketcher.Constraint("Vertical", 2, 3, 3, 3),
    Sketcher.Constraint("Diameter", 0, 3.5),
    Sketcher.Constraint("DistanceY", 1, 3, 0, 3, 100.071),
    Sketcher.Constraint("DistanceX", 2, 3, 1, 3, 95.071),
    Sketcher.Constraint("DistanceX", -1, 1, 0, 3, 5.0355),
    Sketcher.Constraint("DistanceY", -1, 1, 0, 3, 5.0355),
])
pocket7 = body.newObject("PartDesign::Pocket", "Pocket006")
pocket7.Profile = sketch13
pocket7.Length = 3
pocket7.Reversed = True

doc.recompute()
